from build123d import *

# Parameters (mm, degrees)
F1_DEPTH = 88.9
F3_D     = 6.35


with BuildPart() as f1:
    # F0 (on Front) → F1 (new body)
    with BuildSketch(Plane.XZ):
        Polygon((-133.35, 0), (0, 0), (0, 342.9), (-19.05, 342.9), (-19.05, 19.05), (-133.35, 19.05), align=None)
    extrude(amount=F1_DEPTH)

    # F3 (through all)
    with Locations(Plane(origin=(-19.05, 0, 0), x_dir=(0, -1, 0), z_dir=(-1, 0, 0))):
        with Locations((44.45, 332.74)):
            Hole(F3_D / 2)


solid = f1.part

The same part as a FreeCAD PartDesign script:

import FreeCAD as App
import Part
import Sketcher
Q = App.Units.Quantity

doc = App.newDocument("Part")
body = doc.addObject("PartDesign::Body", "Body")

# Sketch on XZ plane
sketch1 = doc.addObject("Sketcher::SketchObject", "Sketch")
body.addObject(sketch1)
sketch1.AttachmentSupport = (doc.XZ_Plane, [""])
sketch1.MapMode = "FlatFace"
sketch1.addGeometry(Part.LineSegment(App.Vector(-133.35, 0, 0), App.Vector(0, 0, 0)), False)
sketch1.addGeometry(Part.LineSegment(App.Vector(0, 0, 0), App.Vector(0, 342.9, 0)), False)
sketch1.addGeometry(Part.LineSegment(App.Vector(0, 342.9, 0), App.Vector(-19.05, 342.9, 0)), False)
sketch1.addGeometry(Part.LineSegment(App.Vector(-19.05, 342.9, 0), App.Vector(-19.05, 19.05, 0)), False)
sketch1.addGeometry(Part.LineSegment(App.Vector(-19.05, 19.05, 0), App.Vector(-133.35, 19.05, 0)), False)
sketch1.addGeometry(Part.LineSegment(App.Vector(-133.35, 19.05, 0), App.Vector(-133.35, 0, 0)), False)
sketch1.addConstraint(Sketcher.Constraint("Coincident", 0, 2, 1, 1))
sketch1.addConstraint(Sketcher.Constraint("Coincident", 1, 2, 2, 1))
sketch1.addConstraint(Sketcher.Constraint("Coincident", 2, 2, 3, 1))
sketch1.addConstraint(Sketcher.Constraint("Coincident", 3, 2, 4, 1))
sketch1.addConstraint(Sketcher.Constraint("Coincident", 4, 2, 5, 1))
sketch1.addConstraint(Sketcher.Constraint("Coincident", 5, 2, 0, 1))
sketch1.addConstraint(Sketcher.Constraint("Horizontal", 0))
sketch1.addConstraint(Sketcher.Constraint("Vertical", 1))
sketch1.addConstraint(Sketcher.Constraint("Horizontal", 2))
sketch1.addConstraint(Sketcher.Constraint("Vertical", 3))
sketch1.addConstraint(Sketcher.Constraint("Horizontal", 4))
sketch1.addConstraint(Sketcher.Constraint("Vertical", 5))
sketch1.addConstraint(Sketcher.Constraint("Coincident", 0, 2, -1, 1))
sketch1.addConstraint(Sketcher.Constraint("Equal", 2, 5))
sketch1.addConstraint(Sketcher.Constraint("DistanceX", 4, 2, 4, 1, Q("4.5 in")))
sketch1.addConstraint(Sketcher.Constraint("DistanceY", 1, 1, 1, 2, Q("13.5 in")))
sketch1.addConstraint(Sketcher.Constraint("DistanceX", 0, 1, 0, 2, Q("5.25 in")))
pad1 = doc.addObject("PartDesign::Pad", "Pad")
body.addObject(pad1)
pad1.Profile = sketch1
pad1.Length = Q("3.5 in")

# Sketch on YZ plane
sketch2 = doc.addObject("Sketcher::SketchObject", "Sketch001")
body.addObject(sketch2)
sketch2.AttachmentSupport = (doc.YZ_Plane, [""])
sketch2.MapMode = "FlatFace"
sketch2.AttachmentOffset = App.Placement(App.Vector(0, 0, -0.75 * 25.4), App.Rotation())
sketch2.addGeometry(Part.Circle(App.Vector(-44.45, 332.74, 0), App.Vector(0, 0, 1), 3.175), False)
sketch2.addConstraint(Sketcher.Constraint("Diameter", 0, Q("0.25 in")))
sketch2.addConstraint(Sketcher.Constraint("DistanceY", -1, 1, 0, 3, Q("13.1 in")))
sketch2.addConstraint(Sketcher.Constraint("DistanceX", 0, 3, -1, 1, Q("1.75 in")))
doc.recompute()
hole = doc.addObject("PartDesign::Hole", "Hole")
body.addObject(hole)
hole.Profile = sketch2
hole.ThreadType = "None"
hole.Diameter = Q("0.25 in")
hole.DepthType = "ThroughAll"
hole.Reversed = True

doc.recompute()
